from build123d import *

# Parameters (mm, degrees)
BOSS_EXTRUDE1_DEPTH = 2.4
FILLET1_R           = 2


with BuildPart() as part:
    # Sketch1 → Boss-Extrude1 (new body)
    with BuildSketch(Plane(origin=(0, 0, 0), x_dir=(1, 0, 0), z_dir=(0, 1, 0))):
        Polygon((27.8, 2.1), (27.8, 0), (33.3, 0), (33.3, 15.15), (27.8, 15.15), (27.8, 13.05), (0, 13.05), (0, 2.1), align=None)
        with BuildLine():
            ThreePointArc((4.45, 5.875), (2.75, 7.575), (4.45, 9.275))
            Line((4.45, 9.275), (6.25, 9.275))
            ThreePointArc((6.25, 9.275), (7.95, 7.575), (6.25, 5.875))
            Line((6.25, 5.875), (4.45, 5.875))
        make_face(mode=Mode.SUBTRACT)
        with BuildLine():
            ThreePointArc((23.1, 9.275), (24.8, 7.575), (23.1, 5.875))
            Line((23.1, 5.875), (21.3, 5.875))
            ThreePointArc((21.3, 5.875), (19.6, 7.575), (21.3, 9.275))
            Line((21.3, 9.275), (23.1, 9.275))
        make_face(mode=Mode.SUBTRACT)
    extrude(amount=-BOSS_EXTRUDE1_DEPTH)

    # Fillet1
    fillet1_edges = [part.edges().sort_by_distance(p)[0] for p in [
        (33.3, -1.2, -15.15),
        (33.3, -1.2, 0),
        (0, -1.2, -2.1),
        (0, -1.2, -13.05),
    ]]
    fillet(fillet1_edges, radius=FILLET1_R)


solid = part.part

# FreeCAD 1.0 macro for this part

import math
import FreeCAD as App
import Part
import Sketcher

V = App.Vector
Q = App.Units.Quantity


def edges_at(feature, points):
    """Names of the edges that pass closest to the given points."""
    edges = feature.Shape.Edges
    near = lambda p: min(range(len(edges)), key=lambda i: edges[i].distToShape(Part.Vertex(*p))[0])
    return sorted({f"Edge{near(p) + 1}" for p in points})

doc = App.newDocument("Part")
body = doc.addObject("PartDesign::Body", "Body")

# Sketch on XZ plane
sketch1 = body.newObject("Sketcher::SketchObject", "Sketch")
sketch1.AttachmentSupport = (doc.getObject("XZ_Plane"), [""])
sketch1.MapMode = "FlatFace"
sketch1.addGeometry(Part.LineSegment(V(27.8, -2.1, 0), V(27.8, 0, 0)), False)
sketch1.addGeometry(Part.LineSegment(V(27.8, 0, 0), V(33.3, 0, 0)), False)
sketch1.addGeometry(Part.LineSegment(V(33.3, 0, 0), V(33.3, -15.15, 0)), False)
sketch1.addGeometry(Part.LineSegment(V(33.3, -15.15, 0), V(27.8, -15.15, 0)), False)
sketch1.addGeometry(Part.LineSegment(V(27.8, -15.15, 0), V(27.8, -13.05, 0)), False)
sketch1.addGeometry(Part.LineSegment(V(27.8, -13.05, 0), V(0, -13.05, 0)), False)
sketch1.addGeometry(Part.LineSegment(V(0, -13.05, 0), V(0, -2.1, 0)), False)
sketch1.addGeometry(Part.LineSegment(V(0, -2.1, 0), V(27.8, -2.1, 0)), False)
sketch1.addGeometry(Part.LineSegment(V(6.25, -5.875, 0), V(4.45, -5.875, 0)), False)
sketch1.addGeometry(Part.ArcOfCircle(Part.Circle(V(4.45, -7.575, 0), V(0, 0, 1), 1.7), math.radians(90), math.radians(270)), False)
sketch1.addGeometry(Part.LineSegment(V(4.45, -9.275, 0), V(6.25, -9.275, 0)), False)
sketch1.addGeometry(Part.ArcOfCircle(Part.Circle(V(6.25, -7.575, 0), V(0, 0, 1), 1.7), math.radians(-90), math.radians(90)), False)
sketch1.addGeometry(Part.LineSegment(V(21.3, -9.275, 0), V(23.1, -9.275, 0)), False)
sketch1.addGeometry(Part.ArcOfCircle(Part.Circle(V(23.1, -7.575, 0), V(0, 0, 1), 1.7), math.radians(-90), math.radians(90)), False)
sketch1.addGeometry(Part.LineSegment(V(23.1, -5.875, 0), V(21.3, -5.875, 0)), False)
sketch1.addGeometry(Part.ArcOfCircle(Part.Circle(V(21.3, -7.575, 0), V(0, 0, 1), 1.7), math.radians(90), math.radians(270)), False)
sketch1.addConstraint(Sketcher.Constraint("Coincident", 0, 2, 1, 1))
sketch1.addConstraint(Sketcher.Constraint("Coincident", 1, 2, 2, 1))
sketch1.addConstraint(Sketcher.Constraint("Coincident", 2, 2, 3, 1))
sketch1.addConstraint(Sketcher.Constraint("Coincident", 3, 2, 4, 1))
sketch1.addConstraint(Sketcher.Constraint("Coincident", 4, 2, 5, 1))
sketch1.addConstraint(Sketcher.Constraint("Coincident", 5, 2, 6, 1))
sketch1.addConstraint(Sketcher.Constraint("Coincident", 6, 2, 7, 1))
sketch1.addConstraint(Sketcher.Constraint("Coincident", 7, 2, 0, 1))
sketch1.addConstraint(Sketcher.Constraint("Tangent", 8, 2, 9, 1))
sketch1.addConstraint(Sketcher.Constraint("Tangent", 9, 2, 10, 1))
sketch1.addConstraint(Sketcher.Constraint("Tangent", 10, 2, 11, 1))
sketch1.addConstraint(Sketcher.Constraint("Tangent", 11, 2, 8, 1))
sketch1.addConstraint(Sketcher.Constraint("Tangent", 12, 2, 13, 1))
sketch1.addConstraint(Sketcher.Constraint("Tangent", 13, 2, 14, 1))
sketch1.addConstraint(Sketcher.Constraint("Tangent", 14, 2, 15, 1))
sketch1.addConstraint(Sketcher.Constraint("Tangent", 15, 2, 12, 1))
sketch1.addConstraint(Sketcher.Constraint("Vertical", 0))
sketch1.addConstraint(Sketcher.Constraint("Horizontal", 1))
sketch1.addConstraint(Sketcher.Constraint("Vertical", 2))
sketch1.addConstraint(Sketcher.Constraint("Horizontal", 3))
sketch1.addConstraint(Sketcher.Constraint("Vertical", 4))
sketch1.addConstraint(Sketcher.Constraint("Horizontal", 5))
sketch1.addConstraint(Sketcher.Constraint("Vertical", 6))
sketch1.addConstraint(Sketcher.Constraint("Horizontal", 7))
sketch1.addConstraint(Sketcher.Constraint("Horizontal", 8))
sketch1.addConstraint(Sketcher.Constraint("Horizontal", 10))
sketch1.addConstraint(Sketcher.Constraint("Horizontal", 12))
sketch1.addConstraint(Sketcher.Constraint("Horizontal", 14))
sketch1.addConstraint(Sketcher.Constraint("Equal", 11, 13))
sketch1.addConstraint(Sketcher.Constraint("PointOnObject", 0, 2, -1))
sketch1.addConstraint(Sketcher.Constraint("PointOnObject", 5, 2, -2))
sketch1.addConstraint(Sketcher.Constraint("Horizontal", 11, 3, 13, 3))
sketch1.addConstraint(Sketcher.Constraint("Vertical", 0, 2, 3, 2))
sketch1.addConstraint(Sketcher.Constraint("Equal", 10, 12))
sketch1.addConstraint(Sketcher.Constraint("Equal", 0, 4))
sketch1.addConstraint(Sketcher.Constraint("Radius", 9, Q("1.7 mm")))
sketch1.addConstraint(Sketcher.Constraint("DistanceX", 1, 1, 1, 2, Q("5.5 mm")))
sketch1.addConstraint(Sketcher.Constraint("DistanceX", 5, 2, 5, 1, Q("27.8 mm")))
sketch1.addConstraint(Sketcher.Constraint("DistanceX", 8, 2, 8, 1, Q("1.8 mm")))
sketch1.addConstraint(Sketcher.Constraint("DistanceY", 0, 1, 0, 2, Q("2.1 mm")))
sketch1.addConstraint(Sketcher.Constraint("DistanceX", 15, 3, 1, 2, Q("12 mm")))
sketch1.addConstraint(Sketcher.Constraint("DistanceY", 2, 2, 2, 1, Q("15.15 mm")))
sketch1.addConstraint(Sketcher.Constraint("DistanceX", -1, 1, 9, 3, Q("4.45 mm")))
sketch1.addConstraint(Sketcher.Constraint("DistanceY", 9, 3, -1, 1, Q("7.575 mm")))
pad1 = body.newObject("PartDesign::Pad", "Pad")
pad1.Profile = sketch1
pad1.Length = 2.4
doc.recompute()

fillet = body.newObject("PartDesign::Fillet", "Fillet")
fillet.Base = (pad1, edges_at(pad1, [
    (33.3, -1.2, -15.15),
    (33.3, -1.2, 0),
    (0, -1.2, -2.1),
    (0, -1.2, -13.05),
]))
fillet.Radius = 2

doc.recompute()
